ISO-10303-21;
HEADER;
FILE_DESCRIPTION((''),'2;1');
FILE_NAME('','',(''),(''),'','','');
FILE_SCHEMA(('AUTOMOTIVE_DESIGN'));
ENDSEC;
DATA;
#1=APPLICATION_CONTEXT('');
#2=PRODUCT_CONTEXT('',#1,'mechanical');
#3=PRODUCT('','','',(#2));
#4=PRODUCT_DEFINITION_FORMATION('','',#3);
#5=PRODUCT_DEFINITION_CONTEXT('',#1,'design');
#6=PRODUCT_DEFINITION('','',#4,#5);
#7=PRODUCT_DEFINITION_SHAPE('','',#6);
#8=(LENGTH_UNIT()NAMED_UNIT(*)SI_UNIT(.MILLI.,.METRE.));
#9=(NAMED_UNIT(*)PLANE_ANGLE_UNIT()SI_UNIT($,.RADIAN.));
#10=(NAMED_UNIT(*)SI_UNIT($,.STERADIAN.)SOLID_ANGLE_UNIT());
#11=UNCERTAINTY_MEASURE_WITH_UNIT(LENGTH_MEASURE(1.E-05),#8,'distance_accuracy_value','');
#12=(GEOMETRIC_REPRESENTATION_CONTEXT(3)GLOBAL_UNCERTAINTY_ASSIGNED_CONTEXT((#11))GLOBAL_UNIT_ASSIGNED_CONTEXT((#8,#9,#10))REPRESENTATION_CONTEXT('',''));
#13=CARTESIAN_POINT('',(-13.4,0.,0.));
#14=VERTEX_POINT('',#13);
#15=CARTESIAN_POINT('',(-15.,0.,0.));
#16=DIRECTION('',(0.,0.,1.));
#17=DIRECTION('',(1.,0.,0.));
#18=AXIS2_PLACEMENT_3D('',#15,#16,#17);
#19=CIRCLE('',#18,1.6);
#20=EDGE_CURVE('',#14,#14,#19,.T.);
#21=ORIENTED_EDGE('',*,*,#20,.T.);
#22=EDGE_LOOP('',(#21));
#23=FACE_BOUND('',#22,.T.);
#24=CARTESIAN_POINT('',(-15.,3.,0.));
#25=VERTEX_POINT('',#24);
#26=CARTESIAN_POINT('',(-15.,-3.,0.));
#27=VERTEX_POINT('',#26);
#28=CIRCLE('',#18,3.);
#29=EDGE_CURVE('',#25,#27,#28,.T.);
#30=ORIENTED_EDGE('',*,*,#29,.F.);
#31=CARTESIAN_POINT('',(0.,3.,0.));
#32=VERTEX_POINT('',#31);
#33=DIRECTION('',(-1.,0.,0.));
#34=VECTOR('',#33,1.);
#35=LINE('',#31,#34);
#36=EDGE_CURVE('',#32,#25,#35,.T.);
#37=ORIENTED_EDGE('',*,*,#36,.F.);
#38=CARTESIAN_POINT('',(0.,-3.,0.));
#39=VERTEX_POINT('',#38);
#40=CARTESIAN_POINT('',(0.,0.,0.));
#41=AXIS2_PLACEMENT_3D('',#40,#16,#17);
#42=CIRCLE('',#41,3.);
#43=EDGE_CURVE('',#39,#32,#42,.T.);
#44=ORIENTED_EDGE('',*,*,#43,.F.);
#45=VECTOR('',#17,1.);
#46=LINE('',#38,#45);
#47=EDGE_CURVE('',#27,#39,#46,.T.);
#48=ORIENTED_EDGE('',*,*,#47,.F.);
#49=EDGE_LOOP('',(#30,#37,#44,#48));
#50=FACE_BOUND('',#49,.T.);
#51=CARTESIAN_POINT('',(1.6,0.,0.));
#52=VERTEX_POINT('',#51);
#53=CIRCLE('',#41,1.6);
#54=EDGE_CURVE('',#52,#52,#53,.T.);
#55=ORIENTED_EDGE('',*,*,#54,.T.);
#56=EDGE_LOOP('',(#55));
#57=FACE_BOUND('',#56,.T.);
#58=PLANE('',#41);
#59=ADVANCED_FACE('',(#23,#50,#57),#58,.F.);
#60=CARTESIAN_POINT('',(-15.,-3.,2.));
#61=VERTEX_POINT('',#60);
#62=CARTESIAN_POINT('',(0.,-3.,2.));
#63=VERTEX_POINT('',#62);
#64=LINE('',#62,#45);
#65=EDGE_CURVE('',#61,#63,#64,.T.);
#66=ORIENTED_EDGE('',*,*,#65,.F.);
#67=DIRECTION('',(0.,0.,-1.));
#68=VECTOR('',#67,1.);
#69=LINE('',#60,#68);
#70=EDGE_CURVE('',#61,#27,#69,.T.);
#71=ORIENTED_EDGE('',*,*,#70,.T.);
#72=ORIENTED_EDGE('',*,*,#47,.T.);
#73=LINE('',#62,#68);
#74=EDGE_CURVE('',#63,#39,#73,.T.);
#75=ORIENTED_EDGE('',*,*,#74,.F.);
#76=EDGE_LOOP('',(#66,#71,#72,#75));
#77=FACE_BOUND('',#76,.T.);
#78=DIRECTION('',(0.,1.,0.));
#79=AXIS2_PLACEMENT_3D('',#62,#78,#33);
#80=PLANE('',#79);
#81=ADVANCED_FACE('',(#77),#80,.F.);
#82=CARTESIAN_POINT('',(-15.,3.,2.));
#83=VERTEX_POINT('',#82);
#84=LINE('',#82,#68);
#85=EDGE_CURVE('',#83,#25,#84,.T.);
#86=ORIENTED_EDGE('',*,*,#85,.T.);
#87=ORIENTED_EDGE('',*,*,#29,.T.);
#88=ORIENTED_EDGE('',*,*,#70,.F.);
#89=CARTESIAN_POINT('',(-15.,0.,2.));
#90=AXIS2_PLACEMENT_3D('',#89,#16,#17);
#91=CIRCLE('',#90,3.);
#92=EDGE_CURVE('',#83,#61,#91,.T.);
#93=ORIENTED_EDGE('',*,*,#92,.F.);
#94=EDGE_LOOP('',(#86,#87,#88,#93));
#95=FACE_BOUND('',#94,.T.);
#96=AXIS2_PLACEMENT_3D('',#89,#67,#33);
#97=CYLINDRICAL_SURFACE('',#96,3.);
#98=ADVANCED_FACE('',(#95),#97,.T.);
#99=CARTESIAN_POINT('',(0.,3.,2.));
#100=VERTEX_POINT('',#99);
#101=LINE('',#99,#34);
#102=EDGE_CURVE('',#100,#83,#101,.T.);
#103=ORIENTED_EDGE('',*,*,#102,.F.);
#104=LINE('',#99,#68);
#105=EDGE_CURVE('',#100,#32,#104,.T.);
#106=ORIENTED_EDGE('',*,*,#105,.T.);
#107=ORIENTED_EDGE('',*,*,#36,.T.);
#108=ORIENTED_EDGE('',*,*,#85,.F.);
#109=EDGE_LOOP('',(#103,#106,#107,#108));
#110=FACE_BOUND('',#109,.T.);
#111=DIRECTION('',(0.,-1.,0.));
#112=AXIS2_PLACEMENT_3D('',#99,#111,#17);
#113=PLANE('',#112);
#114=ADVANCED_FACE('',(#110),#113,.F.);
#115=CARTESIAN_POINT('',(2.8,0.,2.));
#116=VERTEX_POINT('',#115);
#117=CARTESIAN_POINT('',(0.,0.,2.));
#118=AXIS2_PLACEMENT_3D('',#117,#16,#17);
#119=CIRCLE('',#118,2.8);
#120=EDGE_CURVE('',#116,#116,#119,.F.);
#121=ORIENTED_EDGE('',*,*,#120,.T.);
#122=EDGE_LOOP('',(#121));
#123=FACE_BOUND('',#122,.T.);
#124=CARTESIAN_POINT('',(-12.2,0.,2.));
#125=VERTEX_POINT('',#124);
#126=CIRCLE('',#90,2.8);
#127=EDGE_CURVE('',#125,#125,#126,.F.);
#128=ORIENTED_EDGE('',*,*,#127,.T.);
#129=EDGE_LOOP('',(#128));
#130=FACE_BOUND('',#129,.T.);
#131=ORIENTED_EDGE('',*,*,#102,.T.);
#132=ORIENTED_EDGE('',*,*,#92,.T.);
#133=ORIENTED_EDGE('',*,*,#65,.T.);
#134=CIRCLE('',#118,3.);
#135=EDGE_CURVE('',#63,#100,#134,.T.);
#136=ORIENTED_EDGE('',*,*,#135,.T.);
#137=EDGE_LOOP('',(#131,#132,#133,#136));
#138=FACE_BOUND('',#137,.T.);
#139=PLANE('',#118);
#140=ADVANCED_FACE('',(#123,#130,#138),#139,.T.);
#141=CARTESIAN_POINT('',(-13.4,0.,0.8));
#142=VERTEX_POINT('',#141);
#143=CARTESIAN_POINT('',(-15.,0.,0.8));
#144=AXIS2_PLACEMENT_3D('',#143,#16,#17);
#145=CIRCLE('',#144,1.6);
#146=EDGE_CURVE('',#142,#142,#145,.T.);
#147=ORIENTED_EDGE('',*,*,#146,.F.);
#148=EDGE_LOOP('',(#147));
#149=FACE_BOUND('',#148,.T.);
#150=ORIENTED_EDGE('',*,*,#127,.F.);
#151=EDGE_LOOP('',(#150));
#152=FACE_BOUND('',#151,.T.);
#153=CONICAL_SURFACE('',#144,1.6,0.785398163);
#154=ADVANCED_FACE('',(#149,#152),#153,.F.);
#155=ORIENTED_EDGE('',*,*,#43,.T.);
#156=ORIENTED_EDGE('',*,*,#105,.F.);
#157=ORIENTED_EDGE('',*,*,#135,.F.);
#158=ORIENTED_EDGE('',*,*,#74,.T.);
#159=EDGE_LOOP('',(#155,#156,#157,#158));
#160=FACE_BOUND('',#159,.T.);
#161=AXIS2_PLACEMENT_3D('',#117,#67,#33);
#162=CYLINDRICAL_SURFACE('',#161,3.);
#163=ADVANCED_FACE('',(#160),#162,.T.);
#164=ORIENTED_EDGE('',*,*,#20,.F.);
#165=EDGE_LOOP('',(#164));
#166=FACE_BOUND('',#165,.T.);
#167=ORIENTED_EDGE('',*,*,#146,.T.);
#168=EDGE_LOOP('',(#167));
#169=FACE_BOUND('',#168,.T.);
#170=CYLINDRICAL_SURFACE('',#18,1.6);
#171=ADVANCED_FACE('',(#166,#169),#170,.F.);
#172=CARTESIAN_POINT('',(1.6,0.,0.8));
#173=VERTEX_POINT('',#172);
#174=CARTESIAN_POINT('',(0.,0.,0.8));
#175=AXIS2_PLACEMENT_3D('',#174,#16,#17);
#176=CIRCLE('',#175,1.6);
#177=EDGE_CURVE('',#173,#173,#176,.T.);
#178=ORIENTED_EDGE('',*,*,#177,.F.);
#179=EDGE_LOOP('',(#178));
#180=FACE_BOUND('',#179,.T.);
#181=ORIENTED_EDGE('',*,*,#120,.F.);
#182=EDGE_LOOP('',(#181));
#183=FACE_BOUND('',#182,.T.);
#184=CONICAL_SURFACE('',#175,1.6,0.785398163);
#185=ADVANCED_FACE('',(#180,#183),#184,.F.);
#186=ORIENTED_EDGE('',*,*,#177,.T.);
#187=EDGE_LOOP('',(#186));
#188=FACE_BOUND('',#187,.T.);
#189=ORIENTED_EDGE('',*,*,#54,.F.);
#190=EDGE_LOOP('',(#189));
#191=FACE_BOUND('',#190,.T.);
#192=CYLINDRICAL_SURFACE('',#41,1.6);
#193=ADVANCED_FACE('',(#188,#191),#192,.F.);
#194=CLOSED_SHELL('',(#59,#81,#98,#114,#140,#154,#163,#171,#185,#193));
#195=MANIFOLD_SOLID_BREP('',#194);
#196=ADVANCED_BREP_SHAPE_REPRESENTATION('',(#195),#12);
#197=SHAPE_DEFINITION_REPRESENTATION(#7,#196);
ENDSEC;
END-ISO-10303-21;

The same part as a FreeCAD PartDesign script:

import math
import FreeCAD as App
import Part
import Sketcher
from FreeCAD import Vector


def edges_at(feature, points):
    """Names of the edges that pass closest to the given points."""
    edges = feature.Shape.Edges
    near = lambda p: min(range(len(edges)), key=lambda i: edges[i].distToShape(Part.Vertex(*p))[0])
    return sorted({f"Edge{near(p) + 1}" for p in points})

doc = App.newDocument("Part")
body = doc.addObject("PartDesign::Body", "Body")

sketch1 = body.newObject("Sketcher::SketchObject", "Sketch")
sketch1.AttachmentSupport = (doc.getObject("XY_Plane"), [""])
sketch1.MapMode = "FlatFace"
sketch1.addGeometry([
    Part.LineSegment(Vector(-15, -3, 0), Vector(0, -3, 0)),
    Part.ArcOfCircle(Part.Circle(Vector(0, 0, 0), Vector(0, 0, 1), 3), math.radians(-90), math.radians(90)),
    Part.LineSegment(Vector(0, 3, 0), Vector(-15, 3, 0)),
    Part.ArcOfCircle(Part.Circle(Vector(-15, 0, 0), Vector(0, 0, 1), 3), math.radians(90), math.radians(270)),
], False)
sketch1.addConstraint([
    Sketcher.Constraint("Tangent", 0, 2, 1, 1),
    Sketcher.Constraint("Tangent", 1, 2, 2, 1),
    Sketcher.Constraint("Tangent", 2, 2, 3, 1),
    Sketcher.Constraint("Tangent", 3, 2, 0, 1),
    Sketcher.Constraint("Horizontal", 0),
    Sketcher.Constraint("Horizontal", 2),
    Sketcher.Constraint("Coincident", 1, 3, -1, 1),
    Sketcher.Constraint("Radius", 1, 3.0),
    Sketcher.Constraint("DistanceX", 0, 1, 0, 2, 15.0),
])
pad1 = body.newObject("PartDesign::Pad", "Pad")
pad1.Profile = sketch1
pad1.Length = 2

sketch2 = body.newObject("Sketcher::SketchObject", "Sketch001")
sketch2.AttachmentSupport = (doc.getObject("XY_Plane"), [""])
sketch2.MapMode = "FlatFace"
sketch2.AttachmentOffset = App.Placement(Vector(0, 0, 2), App.Rotation())
sketch2.addGeometry([
    Part.Circle(Vector(0, 0, 0), Vector(0, 0, 1), 1.6),
    Part.Circle(Vector(-15, 0, 0), Vector(0, 0, 1), 1.6),
], False)
sketch2.addConstraint([
    Sketcher.Constraint("Coincident", 0, 3, -1, 1),
    Sketcher.Constraint("Equal", 0, 1),
    Sketcher.Constraint("PointOnObject", 1, 3, -1),
    Sketcher.Constraint("Diameter", 0, 3.2),
    Sketcher.Constraint("DistanceX", 1, 3, -1, 1, 15.0),
])
pocket1 = body.newObject("PartDesign::Pocket", "Pocket")
pocket1.Profile = sketch2
pocket1.Type = "ThroughAll"
doc.recompute()

chamfer = body.newObject("PartDesign::Chamfer", "Chamfer")
chamfer.Base = (pocket1, edges_at(pocket1, [(-1.6, 0, 2), (-16.6, 0, 2)]))
chamfer.Size = 1.2

doc.recompute()
